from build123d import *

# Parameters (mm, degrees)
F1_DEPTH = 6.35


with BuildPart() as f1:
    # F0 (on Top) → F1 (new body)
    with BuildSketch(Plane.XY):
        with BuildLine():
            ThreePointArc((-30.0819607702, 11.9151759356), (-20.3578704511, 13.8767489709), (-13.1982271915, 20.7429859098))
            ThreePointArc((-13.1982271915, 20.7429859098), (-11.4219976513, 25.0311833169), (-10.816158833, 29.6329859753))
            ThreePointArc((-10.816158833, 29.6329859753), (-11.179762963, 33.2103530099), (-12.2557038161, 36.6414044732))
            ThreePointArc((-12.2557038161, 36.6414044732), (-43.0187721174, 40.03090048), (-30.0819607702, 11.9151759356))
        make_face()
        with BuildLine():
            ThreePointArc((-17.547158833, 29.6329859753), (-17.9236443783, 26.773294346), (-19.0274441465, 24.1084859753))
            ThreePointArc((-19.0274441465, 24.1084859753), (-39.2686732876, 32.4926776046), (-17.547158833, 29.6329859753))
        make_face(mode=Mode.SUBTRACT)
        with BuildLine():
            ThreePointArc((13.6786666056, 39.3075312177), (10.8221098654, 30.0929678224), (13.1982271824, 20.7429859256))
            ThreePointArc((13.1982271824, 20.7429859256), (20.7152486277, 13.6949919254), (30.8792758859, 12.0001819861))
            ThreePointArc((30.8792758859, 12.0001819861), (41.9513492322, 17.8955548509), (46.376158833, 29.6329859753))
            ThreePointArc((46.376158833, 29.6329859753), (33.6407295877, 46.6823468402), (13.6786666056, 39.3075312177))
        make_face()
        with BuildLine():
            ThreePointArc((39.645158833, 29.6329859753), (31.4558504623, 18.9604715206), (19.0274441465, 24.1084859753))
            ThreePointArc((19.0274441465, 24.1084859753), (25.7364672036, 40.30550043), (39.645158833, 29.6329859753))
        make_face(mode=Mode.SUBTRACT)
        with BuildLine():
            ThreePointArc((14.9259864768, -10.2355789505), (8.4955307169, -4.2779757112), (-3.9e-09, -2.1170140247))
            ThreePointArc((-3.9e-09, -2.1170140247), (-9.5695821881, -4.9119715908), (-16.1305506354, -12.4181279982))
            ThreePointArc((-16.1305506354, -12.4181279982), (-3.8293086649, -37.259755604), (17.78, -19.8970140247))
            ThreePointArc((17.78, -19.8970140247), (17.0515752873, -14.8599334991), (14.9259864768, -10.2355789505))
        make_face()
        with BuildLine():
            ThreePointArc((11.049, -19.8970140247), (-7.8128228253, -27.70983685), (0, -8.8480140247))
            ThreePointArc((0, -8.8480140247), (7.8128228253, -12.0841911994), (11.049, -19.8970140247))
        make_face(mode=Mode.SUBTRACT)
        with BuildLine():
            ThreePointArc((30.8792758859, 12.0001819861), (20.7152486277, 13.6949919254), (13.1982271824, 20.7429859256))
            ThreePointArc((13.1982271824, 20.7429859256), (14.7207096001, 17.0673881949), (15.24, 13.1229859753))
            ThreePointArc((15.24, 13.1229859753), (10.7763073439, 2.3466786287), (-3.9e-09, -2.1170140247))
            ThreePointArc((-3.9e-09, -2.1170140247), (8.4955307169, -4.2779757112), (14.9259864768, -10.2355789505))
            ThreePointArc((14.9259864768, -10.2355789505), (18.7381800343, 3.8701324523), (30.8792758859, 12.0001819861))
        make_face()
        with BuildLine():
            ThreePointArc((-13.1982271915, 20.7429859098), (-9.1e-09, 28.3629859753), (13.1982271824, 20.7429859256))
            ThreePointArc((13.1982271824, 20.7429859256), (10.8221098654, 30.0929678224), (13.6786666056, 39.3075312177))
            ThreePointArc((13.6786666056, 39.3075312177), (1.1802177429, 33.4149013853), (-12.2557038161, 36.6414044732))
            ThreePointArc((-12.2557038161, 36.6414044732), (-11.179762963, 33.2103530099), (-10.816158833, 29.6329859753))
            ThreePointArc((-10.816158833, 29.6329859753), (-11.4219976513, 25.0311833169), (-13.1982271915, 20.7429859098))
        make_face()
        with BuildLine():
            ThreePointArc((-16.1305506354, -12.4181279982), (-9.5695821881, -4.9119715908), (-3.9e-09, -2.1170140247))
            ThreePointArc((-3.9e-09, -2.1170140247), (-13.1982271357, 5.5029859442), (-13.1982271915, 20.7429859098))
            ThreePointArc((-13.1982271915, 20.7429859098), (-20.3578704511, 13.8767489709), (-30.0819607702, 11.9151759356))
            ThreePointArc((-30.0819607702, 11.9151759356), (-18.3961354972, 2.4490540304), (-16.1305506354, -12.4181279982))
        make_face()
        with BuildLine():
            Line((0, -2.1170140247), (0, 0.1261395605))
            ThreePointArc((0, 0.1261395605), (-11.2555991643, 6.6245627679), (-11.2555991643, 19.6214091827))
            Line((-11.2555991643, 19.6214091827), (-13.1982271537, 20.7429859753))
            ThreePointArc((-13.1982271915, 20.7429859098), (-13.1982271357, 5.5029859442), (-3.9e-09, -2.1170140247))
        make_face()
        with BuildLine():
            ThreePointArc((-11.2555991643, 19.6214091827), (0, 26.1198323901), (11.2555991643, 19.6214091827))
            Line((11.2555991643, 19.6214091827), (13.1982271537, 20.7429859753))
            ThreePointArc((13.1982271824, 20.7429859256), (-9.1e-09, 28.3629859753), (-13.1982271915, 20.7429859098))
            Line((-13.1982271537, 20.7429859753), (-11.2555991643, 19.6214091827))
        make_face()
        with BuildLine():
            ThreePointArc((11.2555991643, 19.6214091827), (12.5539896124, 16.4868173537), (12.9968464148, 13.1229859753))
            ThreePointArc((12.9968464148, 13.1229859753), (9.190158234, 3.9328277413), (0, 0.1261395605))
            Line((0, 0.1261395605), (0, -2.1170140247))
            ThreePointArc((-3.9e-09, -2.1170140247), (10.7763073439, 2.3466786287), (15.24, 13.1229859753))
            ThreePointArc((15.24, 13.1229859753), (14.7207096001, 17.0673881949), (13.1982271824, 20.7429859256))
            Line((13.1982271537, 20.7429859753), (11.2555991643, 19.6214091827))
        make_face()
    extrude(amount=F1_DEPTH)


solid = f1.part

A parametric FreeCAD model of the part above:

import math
import FreeCAD as App
import Part
import Sketcher
from FreeCAD import Vector
Q = App.Units.Quantity

doc = App.newDocument("Part")
body = doc.addObject("PartDesign::Body", "Body")

# Sketch on XY plane
sketch1 = doc.addObject("Sketcher::SketchObject", "Sketch")
body.addObject(sketch1)
sketch1.AttachmentSupport = (doc.XY_Plane, [""])
sketch1.MapMode = "FlatFace"
sketch1.addGeometry(Part.ArcOfCircle(Part.Circle(Vector(0, -19.897014, 0), Vector(0, 0, 1), 17.78), math.radians(155.125331), math.radians(360)), False)
sketch1.addGeometry(Part.ArcOfCircle(Part.Circle(Vector(0, -19.897014, 0), Vector(0, 0, 1), 17.78), math.radians(0), math.radians(32.91456)), False)
sketch1.addGeometry(Part.ArcOfCircle(Part.Circle(Vector(35.661169, -8.271451, 0), Vector(0, 0, 1), 20.828), math.radians(103.272913), math.radians(185.411165)), False)
sketch1.addGeometry(Part.ArcOfCircle(Part.Circle(Vector(28.596159, 29.632986, 0), Vector(0, 0, 1), 17.78), math.radians(-82.622319), math.radians(0)), False)
sketch1.addGeometry(Part.ArcOfCircle(Part.Circle(Vector(28.596159, 29.632986, 0), Vector(0, 0, 1), 17.78), math.radians(0), math.radians(147.0351)), False)
sketch1.addGeometry(Part.ArcOfCircle(Part.Circle(Vector(-0.949734, 54.133707, 0), Vector(0, 0, 1), 20.828), math.radians(-122.876191), math.radians(-45.38471)), False)
sketch1.addGeometry(Part.ArcOfCircle(Part.Circle(Vector(-28.596159, 29.632986, 0), Vector(0, 0, 1), 17.78), math.radians(23.214485), math.radians(265.206436)), False)
sketch1.addGeometry(Part.ArcOfCircle(Part.Circle(Vector(-36.464958, -7.910639, 0), Vector(0, 0, 1), 20.828), math.radians(-12.498549), math.radians(72.153838)), False)
sketch1.addGeometry(Part.ArcOfCircle(Part.Circle(Vector(0, 13.122986, 0), Vector(0, 0, 1), 12.996846), math.radians(30), math.radians(270)), False)
sketch1.addGeometry(Part.ArcOfCircle(Part.Circle(Vector(0, 13.122986, 0), Vector(0, 0, 1), 12.996846), math.radians(0), math.radians(30)), False)
sketch1.addGeometry(Part.ArcOfCircle(Part.Circle(Vector(0, 13.122986, 0), Vector(0, 0, 1), 12.996846), math.radians(-90), math.radians(0)), False)
sketch1.addGeometry(Part.ArcOfCircle(Part.Circle(Vector(-28.596159, 29.632986, 0), Vector(0, 0, 1), 11.049), math.radians(0), math.radians(330)), False)
sketch1.addGeometry(Part.ArcOfCircle(Part.Circle(Vector(-28.596159, 29.632986, 0), Vector(0, 0, 1), 11.049), math.radians(-30), math.radians(0)), False)
sketch1.addGeometry(Part.ArcOfCircle(Part.Circle(Vector(0, -19.897014, 0), Vector(0, 0, 1), 11.049), math.radians(0), math.radians(90)), False)
sketch1.addGeometry(Part.ArcOfCircle(Part.Circle(Vector(0, -19.897014, 0), Vector(0, 0, 1), 11.049), math.radians(90), math.radians(360)), False)
sketch1.addGeometry(Part.ArcOfCircle(Part.Circle(Vector(28.596159, 29.632986, 0), Vector(0, 0, 1), 11.049), math.radians(0), math.radians(210)), False)
sketch1.addGeometry(Part.ArcOfCircle(Part.Circle(Vector(28.596159, 29.632986, 0), Vector(0, 0, 1), 11.049), math.radians(-150), math.radians(0)), False)
sketch1.addConstraint(Sketcher.Constraint("Tangent", 0, 2, 1, 1))
sketch1.addConstraint(Sketcher.Constraint("Coincident", 1, 2, 2, 2))
sketch1.addConstraint(Sketcher.Constraint("Coincident", 2, 1, 3, 1))
sketch1.addConstraint(Sketcher.Constraint("Tangent", 3, 2, 4, 1))
sketch1.addConstraint(Sketcher.Constraint("Coincident", 4, 2, 5, 2))
sketch1.addConstraint(Sketcher.Constraint("Coincident", 5, 1, 6, 1))
sketch1.addConstraint(Sketcher.Constraint("Coincident", 6, 2, 7, 2))
sketch1.addConstraint(Sketcher.Constraint("Coincident", 7, 1, 0, 1))
sketch1.addConstraint(Sketcher.Constraint("Tangent", 8, 1, 9, 2))
sketch1.addConstraint(Sketcher.Constraint("Tangent", 9, 1, 10, 2))
sketch1.addConstraint(Sketcher.Constraint("Tangent", 10, 1, 8, 2))
sketch1.addConstraint(Sketcher.Constraint("Tangent", 11, 1, 12, 2))
sketch1.addConstraint(Sketcher.Constraint("Coincident", 12, 1, 11, 2))
sketch1.addConstraint(Sketcher.Constraint("Tangent", 13, 1, 14, 2))
sketch1.addConstraint(Sketcher.Constraint("Coincident", 14, 1, 13, 2))
sketch1.addConstraint(Sketcher.Constraint("Tangent", 15, 1, 16, 2))
sketch1.addConstraint(Sketcher.Constraint("Coincident", 16, 1, 15, 2))
sketch1.addConstraint(Sketcher.Constraint("Coincident", 11, 3, 6, 3))
sketch1.addConstraint(Sketcher.Constraint("Coincident", 13, 3, 0, 3))
sketch1.addConstraint(Sketcher.Constraint("Coincident", 15, 3, 3, 3))
sketch1.addConstraint(Sketcher.Constraint("Equal", 0, 1))
sketch1.addConstraint(Sketcher.Constraint("Equal", 1, 3))
sketch1.addConstraint(Sketcher.Constraint("Equal", 3, 4))
sketch1.addConstraint(Sketcher.Constraint("Equal", 2, 5))
sketch1.addConstraint(Sketcher.Constraint("Equal", 4, 6))
sketch1.addConstraint(Sketcher.Constraint("Equal", 5, 7))
sketch1.addConstraint(Sketcher.Constraint("Equal", 12, 13))
sketch1.addConstraint(Sketcher.Constraint("Equal", 14, 15))
sketch1.addConstraint(Sketcher.Constraint("Symmetric", 3, 3, 6, 3, -2))
sketch1.addConstraint(Sketcher.Constraint("PointOnObject", 0, 3, -2))
sketch1.addConstraint(Sketcher.Constraint("PointOnObject", 8, 3, -2))
sketch1.addConstraint(Sketcher.Constraint("PointOnObject", 10, 1, -2))
sketch1.addConstraint(Sketcher.Constraint("PointOnObject", 14, 1, -2))
sketch1.addConstraint(Sketcher.Constraint("Horizontal", 14, 3, 0, 2))
sketch1.addConstraint(Sketcher.Constraint("Horizontal", 16, 3, 3, 2))
sketch1.addConstraint(Sketcher.Constraint("Horizontal", 10, 3, 9, 1))
sketch1.addConstraint(Sketcher.Constraint("Horizontal", 3, 2, 11, 1))
sketch1.addConstraint(Sketcher.Constraint("Horizontal", 0, 2, 13, 1))
sketch1.addConstraint(Sketcher.Constraint("Horizontal", 11, 1, 15, 1))
sketch1.addConstraint(Sketcher.Constraint("Horizontal", 12, 1, 16, 1))
sketch1.addConstraint(Sketcher.Constraint("Radius", 0, Q("0.7 in")))
sketch1.addConstraint(Sketcher.Constraint("Radius", 2, Q("0.82 in")))
sketch1.addConstraint(Sketcher.Constraint("Radius", 11, Q("0.435 in")))
sketch1.addConstraint(Sketcher.Constraint("DistanceY", 0, 3, 8, 3, Q("1.3 in")))
sketch1.addConstraint(Sketcher.Constraint("DistanceY", 0, 3, 3, 3, Q("1.95 in")))
sketch1.addConstraint(Sketcher.Constraint("Radius", 8, Q("12.996846 mm")))
sketch1.addConstraint(Sketcher.Constraint("DistanceY", 12, 1, 11, 1, Q("0.2175 in")))
sketch1.addConstraint(Sketcher.Constraint("DistanceX", -1, 1, 8, 1, Q("11.255599 mm")))
sketch1.addConstraint(Sketcher.Constraint("DistanceX", 7, 3, 6, 3, Q("7.868799 mm")))
sketch1.addConstraint(Sketcher.Constraint("DistanceX", 5, 3, 4, 2, Q("14.628401 mm")))
sketch1.addConstraint(Sketcher.Constraint("DistanceX", 6, 2, 6, 3, Q("1.485802 mm")))
sketch1.addConstraint(Sketcher.Constraint("DistanceX", -1, 1, 2, 3, Q("35.661169 mm")))
sketch1.addConstraint(Sketcher.Constraint("DistanceY", 2, 3, -1, 1, Q("8.271451 mm")))
sketch1.addConstraint(Sketcher.Constraint("DistanceX", -1, 1, 3, 3, Q("28.596159 mm")))
sketch1.addConstraint(Sketcher.Constraint("DistanceY", 7, 3, -1, 1, Q("7.910639 mm")))
sketch1.addConstraint(Sketcher.Constraint("DistanceY", -1, 1, 4, 2, Q("39.307531 mm")))
pad1 = doc.addObject("PartDesign::Pad", "Pad")
body.addObject(pad1)
pad1.Profile = sketch1
pad1.Length = Q("0.25 in")

doc.recompute()
